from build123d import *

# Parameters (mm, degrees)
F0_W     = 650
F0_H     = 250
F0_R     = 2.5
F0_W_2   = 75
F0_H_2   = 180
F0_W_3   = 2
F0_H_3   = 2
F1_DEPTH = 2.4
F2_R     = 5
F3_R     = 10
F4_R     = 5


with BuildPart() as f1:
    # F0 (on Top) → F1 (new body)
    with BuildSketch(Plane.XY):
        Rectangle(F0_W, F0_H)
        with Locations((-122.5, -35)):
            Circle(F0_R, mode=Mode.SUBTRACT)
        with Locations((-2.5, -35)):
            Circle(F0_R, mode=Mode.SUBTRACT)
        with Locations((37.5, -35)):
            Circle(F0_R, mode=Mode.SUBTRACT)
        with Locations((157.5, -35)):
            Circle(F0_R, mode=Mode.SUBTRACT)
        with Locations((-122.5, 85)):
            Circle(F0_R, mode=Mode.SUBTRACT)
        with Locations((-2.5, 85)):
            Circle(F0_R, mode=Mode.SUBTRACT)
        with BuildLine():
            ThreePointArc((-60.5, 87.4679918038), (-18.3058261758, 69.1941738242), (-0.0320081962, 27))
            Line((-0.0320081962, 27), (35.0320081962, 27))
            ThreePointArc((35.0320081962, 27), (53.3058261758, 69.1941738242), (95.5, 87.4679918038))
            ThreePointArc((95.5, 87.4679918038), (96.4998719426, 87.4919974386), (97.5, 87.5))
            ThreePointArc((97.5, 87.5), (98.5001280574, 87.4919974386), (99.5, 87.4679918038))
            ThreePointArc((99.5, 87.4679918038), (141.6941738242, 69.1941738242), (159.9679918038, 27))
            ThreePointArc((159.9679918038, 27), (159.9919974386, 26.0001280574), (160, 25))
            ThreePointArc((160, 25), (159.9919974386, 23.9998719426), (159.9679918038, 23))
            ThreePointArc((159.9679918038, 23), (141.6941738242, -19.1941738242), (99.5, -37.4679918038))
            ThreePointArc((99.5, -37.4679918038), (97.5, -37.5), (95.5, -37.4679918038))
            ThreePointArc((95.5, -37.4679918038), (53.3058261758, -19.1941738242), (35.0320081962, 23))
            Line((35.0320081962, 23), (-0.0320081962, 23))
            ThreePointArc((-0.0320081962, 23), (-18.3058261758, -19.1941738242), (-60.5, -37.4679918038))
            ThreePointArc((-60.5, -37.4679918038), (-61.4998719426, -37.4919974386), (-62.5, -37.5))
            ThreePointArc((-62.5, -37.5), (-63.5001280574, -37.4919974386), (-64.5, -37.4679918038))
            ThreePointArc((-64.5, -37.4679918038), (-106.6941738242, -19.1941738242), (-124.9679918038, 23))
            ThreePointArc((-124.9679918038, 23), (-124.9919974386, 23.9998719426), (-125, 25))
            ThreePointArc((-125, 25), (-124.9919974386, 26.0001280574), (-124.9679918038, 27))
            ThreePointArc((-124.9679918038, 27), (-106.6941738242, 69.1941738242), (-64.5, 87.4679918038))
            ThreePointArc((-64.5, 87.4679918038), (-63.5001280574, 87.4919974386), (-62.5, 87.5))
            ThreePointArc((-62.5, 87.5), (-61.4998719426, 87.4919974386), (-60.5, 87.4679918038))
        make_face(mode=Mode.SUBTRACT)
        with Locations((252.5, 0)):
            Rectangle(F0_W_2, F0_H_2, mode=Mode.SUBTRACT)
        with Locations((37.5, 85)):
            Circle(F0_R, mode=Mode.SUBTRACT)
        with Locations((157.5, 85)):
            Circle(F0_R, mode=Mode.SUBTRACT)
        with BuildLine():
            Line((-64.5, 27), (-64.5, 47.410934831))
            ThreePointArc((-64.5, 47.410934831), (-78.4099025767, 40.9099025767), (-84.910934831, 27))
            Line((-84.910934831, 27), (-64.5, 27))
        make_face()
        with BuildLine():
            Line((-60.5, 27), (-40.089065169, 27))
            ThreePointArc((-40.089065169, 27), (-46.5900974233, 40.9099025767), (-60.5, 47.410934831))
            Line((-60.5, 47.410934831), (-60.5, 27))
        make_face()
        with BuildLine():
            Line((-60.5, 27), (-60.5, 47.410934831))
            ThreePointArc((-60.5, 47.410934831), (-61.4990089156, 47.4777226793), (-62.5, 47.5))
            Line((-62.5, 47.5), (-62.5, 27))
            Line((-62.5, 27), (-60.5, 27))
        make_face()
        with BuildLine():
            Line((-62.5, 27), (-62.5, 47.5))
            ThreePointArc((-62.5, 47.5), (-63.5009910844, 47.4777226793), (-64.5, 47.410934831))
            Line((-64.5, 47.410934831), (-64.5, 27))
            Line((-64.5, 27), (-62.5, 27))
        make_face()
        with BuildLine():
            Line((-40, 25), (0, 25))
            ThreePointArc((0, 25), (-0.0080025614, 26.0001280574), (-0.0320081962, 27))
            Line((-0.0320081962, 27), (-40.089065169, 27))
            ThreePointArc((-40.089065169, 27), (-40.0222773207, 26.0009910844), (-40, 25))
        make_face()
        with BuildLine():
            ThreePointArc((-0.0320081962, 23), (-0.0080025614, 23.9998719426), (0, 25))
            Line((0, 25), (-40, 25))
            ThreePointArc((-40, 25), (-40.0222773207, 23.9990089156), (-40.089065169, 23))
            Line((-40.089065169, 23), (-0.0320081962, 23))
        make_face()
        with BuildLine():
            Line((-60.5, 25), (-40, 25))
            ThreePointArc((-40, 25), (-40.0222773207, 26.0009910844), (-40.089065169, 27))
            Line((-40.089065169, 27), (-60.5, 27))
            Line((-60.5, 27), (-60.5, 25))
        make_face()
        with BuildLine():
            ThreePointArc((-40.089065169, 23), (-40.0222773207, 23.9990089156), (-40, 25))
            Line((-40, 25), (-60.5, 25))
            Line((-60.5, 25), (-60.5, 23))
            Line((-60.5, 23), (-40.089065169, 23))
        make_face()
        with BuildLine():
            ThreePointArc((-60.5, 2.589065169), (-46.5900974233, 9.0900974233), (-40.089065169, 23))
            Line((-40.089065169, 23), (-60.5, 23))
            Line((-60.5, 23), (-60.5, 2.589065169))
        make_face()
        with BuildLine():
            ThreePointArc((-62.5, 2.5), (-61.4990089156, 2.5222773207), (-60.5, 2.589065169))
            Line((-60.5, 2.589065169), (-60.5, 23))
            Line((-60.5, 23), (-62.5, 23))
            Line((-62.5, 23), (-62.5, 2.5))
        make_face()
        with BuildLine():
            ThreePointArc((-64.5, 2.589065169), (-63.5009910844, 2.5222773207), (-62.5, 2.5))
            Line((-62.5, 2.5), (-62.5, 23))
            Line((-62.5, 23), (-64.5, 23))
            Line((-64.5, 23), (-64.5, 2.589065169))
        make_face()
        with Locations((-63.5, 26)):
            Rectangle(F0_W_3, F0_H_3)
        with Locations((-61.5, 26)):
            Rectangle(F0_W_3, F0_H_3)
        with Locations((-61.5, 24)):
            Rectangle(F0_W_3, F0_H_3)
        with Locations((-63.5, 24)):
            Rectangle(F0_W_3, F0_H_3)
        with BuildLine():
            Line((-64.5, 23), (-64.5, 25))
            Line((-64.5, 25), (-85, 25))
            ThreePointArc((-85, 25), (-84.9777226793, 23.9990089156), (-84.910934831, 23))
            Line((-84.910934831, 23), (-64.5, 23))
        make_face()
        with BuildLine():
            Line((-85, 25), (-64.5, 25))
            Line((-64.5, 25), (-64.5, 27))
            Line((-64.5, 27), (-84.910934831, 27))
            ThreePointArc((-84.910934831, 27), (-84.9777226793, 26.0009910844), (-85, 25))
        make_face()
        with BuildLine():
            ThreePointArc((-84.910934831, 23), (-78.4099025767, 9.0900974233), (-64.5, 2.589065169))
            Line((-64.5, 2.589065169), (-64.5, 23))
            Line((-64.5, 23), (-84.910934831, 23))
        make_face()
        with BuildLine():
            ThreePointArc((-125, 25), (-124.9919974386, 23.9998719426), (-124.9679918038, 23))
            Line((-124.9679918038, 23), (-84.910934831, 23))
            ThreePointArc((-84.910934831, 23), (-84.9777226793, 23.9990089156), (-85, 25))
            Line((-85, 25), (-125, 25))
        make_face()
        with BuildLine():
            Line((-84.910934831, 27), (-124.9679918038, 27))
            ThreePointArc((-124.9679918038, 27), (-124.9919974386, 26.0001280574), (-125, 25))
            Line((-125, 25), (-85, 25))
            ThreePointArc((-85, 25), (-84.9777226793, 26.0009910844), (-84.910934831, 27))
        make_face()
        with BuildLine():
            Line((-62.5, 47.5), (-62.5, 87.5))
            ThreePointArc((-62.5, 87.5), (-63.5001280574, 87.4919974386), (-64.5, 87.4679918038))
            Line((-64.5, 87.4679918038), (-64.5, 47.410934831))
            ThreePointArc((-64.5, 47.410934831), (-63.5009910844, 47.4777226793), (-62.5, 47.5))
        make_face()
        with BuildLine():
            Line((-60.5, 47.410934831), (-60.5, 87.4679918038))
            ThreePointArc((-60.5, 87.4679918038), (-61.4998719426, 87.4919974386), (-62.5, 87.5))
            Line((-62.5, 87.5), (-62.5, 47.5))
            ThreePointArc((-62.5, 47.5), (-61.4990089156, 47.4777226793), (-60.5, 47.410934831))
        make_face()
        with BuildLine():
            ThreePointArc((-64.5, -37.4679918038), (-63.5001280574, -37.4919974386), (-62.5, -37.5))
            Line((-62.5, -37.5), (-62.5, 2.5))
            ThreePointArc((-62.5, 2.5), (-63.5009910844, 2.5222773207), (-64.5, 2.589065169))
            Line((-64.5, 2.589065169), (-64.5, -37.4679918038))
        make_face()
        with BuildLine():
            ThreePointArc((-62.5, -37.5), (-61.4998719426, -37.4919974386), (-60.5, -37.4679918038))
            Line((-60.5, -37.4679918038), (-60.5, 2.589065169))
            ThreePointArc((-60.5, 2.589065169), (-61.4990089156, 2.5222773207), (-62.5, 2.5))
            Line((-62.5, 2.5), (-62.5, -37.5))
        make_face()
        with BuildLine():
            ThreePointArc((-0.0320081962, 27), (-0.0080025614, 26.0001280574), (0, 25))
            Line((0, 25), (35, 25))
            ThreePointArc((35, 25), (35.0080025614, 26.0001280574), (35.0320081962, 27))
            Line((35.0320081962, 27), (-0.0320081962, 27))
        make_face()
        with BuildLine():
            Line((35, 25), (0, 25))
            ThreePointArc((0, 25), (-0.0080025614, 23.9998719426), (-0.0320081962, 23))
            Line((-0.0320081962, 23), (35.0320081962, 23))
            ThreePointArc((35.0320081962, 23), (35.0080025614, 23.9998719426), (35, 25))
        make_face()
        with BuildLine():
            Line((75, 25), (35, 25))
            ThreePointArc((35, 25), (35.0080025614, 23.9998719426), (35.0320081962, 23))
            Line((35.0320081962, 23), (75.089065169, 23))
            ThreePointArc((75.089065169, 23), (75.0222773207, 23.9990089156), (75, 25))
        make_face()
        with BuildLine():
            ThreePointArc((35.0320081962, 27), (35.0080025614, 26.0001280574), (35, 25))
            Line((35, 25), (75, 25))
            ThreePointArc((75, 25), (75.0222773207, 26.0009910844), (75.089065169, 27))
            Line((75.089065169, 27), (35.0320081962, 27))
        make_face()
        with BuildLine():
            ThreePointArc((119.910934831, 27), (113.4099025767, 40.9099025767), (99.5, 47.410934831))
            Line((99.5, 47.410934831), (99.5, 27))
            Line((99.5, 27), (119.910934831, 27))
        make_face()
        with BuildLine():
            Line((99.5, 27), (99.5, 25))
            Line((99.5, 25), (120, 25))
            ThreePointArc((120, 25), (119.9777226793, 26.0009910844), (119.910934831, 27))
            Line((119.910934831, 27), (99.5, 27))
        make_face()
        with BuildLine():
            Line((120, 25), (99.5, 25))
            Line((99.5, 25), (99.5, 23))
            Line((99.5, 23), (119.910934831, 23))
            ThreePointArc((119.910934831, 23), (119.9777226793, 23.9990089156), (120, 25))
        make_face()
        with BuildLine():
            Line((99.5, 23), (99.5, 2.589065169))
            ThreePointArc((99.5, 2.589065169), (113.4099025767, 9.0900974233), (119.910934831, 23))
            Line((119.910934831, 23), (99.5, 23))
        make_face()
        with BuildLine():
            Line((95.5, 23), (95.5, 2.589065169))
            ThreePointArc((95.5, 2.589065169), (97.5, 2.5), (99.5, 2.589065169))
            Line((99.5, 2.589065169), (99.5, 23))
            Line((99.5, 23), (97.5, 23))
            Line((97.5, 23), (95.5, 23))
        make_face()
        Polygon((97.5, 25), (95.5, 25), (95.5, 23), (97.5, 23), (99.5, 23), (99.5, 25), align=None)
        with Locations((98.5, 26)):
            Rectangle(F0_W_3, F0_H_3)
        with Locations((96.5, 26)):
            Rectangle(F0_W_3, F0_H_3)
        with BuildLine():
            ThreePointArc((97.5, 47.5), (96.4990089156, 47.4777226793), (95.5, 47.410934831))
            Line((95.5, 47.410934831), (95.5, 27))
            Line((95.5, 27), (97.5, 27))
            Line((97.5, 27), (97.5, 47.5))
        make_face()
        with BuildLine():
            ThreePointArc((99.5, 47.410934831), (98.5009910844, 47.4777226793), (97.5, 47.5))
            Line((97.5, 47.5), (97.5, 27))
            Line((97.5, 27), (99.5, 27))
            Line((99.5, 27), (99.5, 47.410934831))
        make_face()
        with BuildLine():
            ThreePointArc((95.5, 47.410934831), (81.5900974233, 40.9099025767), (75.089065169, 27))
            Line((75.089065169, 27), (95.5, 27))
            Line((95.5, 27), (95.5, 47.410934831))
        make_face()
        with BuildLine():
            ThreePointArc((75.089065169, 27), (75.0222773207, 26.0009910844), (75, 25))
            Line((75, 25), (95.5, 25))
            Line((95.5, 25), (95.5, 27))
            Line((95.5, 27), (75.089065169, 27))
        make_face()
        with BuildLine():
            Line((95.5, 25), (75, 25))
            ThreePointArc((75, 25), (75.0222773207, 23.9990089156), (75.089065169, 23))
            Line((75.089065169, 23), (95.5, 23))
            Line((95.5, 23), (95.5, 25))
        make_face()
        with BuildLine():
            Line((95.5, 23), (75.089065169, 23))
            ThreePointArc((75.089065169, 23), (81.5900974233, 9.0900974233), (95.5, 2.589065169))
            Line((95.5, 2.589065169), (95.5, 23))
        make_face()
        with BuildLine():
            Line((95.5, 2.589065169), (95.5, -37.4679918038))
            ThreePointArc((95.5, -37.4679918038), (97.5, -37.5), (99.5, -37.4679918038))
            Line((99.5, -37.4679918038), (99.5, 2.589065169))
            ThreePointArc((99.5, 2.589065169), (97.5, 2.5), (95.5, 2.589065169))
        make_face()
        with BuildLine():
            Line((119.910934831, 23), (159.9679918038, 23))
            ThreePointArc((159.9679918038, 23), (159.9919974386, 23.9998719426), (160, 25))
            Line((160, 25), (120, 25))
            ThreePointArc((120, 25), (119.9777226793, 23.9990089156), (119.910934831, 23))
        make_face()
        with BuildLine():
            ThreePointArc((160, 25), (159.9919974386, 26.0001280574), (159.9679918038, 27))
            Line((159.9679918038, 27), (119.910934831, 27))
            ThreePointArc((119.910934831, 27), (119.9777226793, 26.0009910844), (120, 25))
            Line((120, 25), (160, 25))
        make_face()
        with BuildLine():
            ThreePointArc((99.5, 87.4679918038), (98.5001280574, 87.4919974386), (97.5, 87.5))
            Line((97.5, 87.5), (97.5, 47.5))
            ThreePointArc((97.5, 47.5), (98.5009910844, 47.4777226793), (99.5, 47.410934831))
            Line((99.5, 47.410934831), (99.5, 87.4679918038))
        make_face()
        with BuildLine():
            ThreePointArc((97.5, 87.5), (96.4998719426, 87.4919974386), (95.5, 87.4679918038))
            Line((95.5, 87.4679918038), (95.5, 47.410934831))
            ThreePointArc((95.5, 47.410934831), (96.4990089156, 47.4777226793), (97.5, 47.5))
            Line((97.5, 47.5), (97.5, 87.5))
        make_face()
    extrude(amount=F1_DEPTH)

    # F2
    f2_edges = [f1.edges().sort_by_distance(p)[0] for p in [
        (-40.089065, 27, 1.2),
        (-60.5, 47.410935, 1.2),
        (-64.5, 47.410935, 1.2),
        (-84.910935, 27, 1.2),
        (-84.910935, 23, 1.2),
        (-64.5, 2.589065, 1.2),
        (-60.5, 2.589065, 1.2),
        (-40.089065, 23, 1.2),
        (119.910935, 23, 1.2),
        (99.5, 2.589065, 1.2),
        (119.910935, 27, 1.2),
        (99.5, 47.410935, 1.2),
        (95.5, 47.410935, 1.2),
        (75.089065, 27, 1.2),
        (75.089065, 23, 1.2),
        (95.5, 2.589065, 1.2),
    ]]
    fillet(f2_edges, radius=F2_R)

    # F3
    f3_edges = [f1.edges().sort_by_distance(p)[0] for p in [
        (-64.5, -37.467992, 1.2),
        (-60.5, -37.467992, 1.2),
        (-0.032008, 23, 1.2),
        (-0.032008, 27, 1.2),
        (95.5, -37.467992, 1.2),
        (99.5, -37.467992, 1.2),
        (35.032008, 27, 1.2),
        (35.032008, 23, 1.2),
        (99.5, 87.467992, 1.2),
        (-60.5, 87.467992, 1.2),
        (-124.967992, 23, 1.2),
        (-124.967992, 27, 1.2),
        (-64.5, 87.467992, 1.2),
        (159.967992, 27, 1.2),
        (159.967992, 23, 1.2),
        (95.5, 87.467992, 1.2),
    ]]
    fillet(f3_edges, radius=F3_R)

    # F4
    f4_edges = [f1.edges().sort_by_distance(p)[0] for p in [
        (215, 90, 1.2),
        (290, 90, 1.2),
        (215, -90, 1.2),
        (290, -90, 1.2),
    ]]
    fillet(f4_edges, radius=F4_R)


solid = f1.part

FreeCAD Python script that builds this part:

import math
import FreeCAD as App
import Part
import Sketcher
Q = App.Units.Quantity


def edges_at(feature, points):
    """Names of the edges that pass closest to the given points."""
    edges = feature.Shape.Edges
    near = lambda p: min(range(len(edges)), key=lambda i: edges[i].distToShape(Part.Vertex(*p))[0])
    return sorted({f"Edge{near(p) + 1}" for p in points})

doc = App.newDocument("Part")
body = doc.addObject("PartDesign::Body", "Body")

# Sketch on XY plane
sketch1 = body.newObject("Sketcher::SketchObject", "Sketch")
sketch1.AttachmentSupport = (doc.getObject("XY_Plane"), [""])
sketch1.MapMode = "FlatFace"
sketch1.addGeometry([
    Part.LineSegment(App.Vector(-325, 125, 0), App.Vector(-325, -125, 0)),  # 0
    Part.LineSegment(App.Vector(-325, -125, 0), App.Vector(325, -125, 0)),  # 1
    Part.LineSegment(App.Vector(325, -125, 0), App.Vector(325, 125, 0)),  # 2
    Part.LineSegment(App.Vector(325, 125, 0), App.Vector(-325, 125, 0)),  # 3
    Part.Circle(App.Vector(-122.5, -35, 0), App.Vector(0, 0, 1), 2.5),  # 4
    Part.ArcOfCircle(Part.Circle(App.Vector(-62.5, 25, 0), App.Vector(0, 0, 1), 22.5), math.radians(-175), math.radians(-95)),  # 5
    Part.LineSegment(App.Vector(-64.5, 2.6, 0), App.Vector(-64.5, -37.5, 0)),  # 6
    Part.ArcOfCircle(Part.Circle(App.Vector(-62.5, 25, 0), App.Vector(0, 0, 1), 62.5), math.radians(-178), math.radians(-92)),  # 7
    Part.LineSegment(App.Vector(-125, 23, 0), App.Vector(-84.9, 23, 0)),  # 8
    Part.LineSegment(App.Vector(-40.1, 23, 0), App.Vector(0, 23, 0)),  # 9
    Part.ArcOfCircle(Part.Circle(App.Vector(-62.5, 25, 0), App.Vector(0, 0, 1), 62.5), math.radians(-88), math.radians(-2)),  # 10
    Part.LineSegment(App.Vector(-60.5, -37.5, 0), App.Vector(-60.5, 2.6, 0)),  # 11
    Part.ArcOfCircle(Part.Circle(App.Vector(-62.5, 25, 0), App.Vector(0, 0, 1), 22.5), math.radians(-85), math.radians(-5)),  # 12
    Part.Circle(App.Vector(-2.5, -35, 0), App.Vector(0, 0, 1), 2.5),  # 13
    Part.Circle(App.Vector(37.5, -35, 0), App.Vector(0, 0, 1), 2.5),  # 14
    Part.Circle(App.Vector(157.5, -35, 0), App.Vector(0, 0, 1), 2.5),  # 15
    Part.ArcOfCircle(Part.Circle(App.Vector(97.5, 25, 0), App.Vector(0, 0, 1), 62.5), math.radians(-178), math.radians(-92)),  # 16
    Part.LineSegment(App.Vector(35, 23, 0), App.Vector(75.1, 23, 0)),  # 17
    Part.ArcOfCircle(Part.Circle(App.Vector(97.5, 25, 0), App.Vector(0, 0, 1), 22.5), math.radians(-175), math.radians(-95)),  # 18
    Part.LineSegment(App.Vector(95.5, 2.6, 0), App.Vector(95.5, -37.5, 0)),  # 19
    Part.ArcOfCircle(Part.Circle(App.Vector(97.5, 25, 0), App.Vector(0, 0, 1), 22.5), math.radians(-85), math.radians(-5)),  # 20
    Part.LineSegment(App.Vector(119.9, 23, 0), App.Vector(160, 23, 0)),  # 21
    Part.ArcOfCircle(Part.Circle(App.Vector(97.5, 25, 0), App.Vector(0, 0, 1), 62.5), math.radians(-88), math.radians(-2)),  # 22
    Part.LineSegment(App.Vector(99.5, -37.5, 0), App.Vector(99.5, 2.6, 0)),  # 23
    Part.ArcOfCircle(Part.Circle(App.Vector(97.5, 25, 0), App.Vector(0, 0, 1), 22.5), math.radians(5), math.radians(85)),  # 24
    Part.LineSegment(App.Vector(99.5, 47.4, 0), App.Vector(99.5, 87.5, 0)),  # 25
    Part.ArcOfCircle(Part.Circle(App.Vector(97.5, 25, 0), App.Vector(0, 0, 1), 62.5), math.radians(2), math.radians(88)),  # 26
    Part.LineSegment(App.Vector(160, 27, 0), App.Vector(119.9, 27, 0)),  # 27
    Part.ArcOfCircle(Part.Circle(App.Vector(97.5, 25, 0), App.Vector(0, 0, 1), 22.5), math.radians(95), math.radians(175)),  # 28
    Part.LineSegment(App.Vector(75.1, 27, 0), App.Vector(35, 27, 0)),  # 29
    Part.ArcOfCircle(Part.Circle(App.Vector(97.5, 25, 0), App.Vector(0, 0, 1), 62.5), math.radians(92), math.radians(178)),  # 30
    Part.LineSegment(App.Vector(95.5, 87.5, 0), App.Vector(95.5, 47.4, 0)),  # 31
    Part.ArcOfCircle(Part.Circle(App.Vector(-62.5, 25, 0), App.Vector(0, 0, 1), 62.5), math.radians(92), math.radians(178)),  # 32
    Part.LineSegment(App.Vector(-64.5, 87.5, 0), App.Vector(-64.5, 47.4, 0)),  # 33
    Part.ArcOfCircle(Part.Circle(App.Vector(-62.5, 25, 0), App.Vector(0, 0, 1), 22.5), math.radians(95), math.radians(175)),  # 34
    Part.LineSegment(App.Vector(-84.9, 27, 0), App.Vector(-125, 27, 0)),  # 35
    Part.ArcOfCircle(Part.Circle(App.Vector(-62.5, 25, 0), App.Vector(0, 0, 1), 62.5), math.radians(2), math.radians(88)),  # 36
    Part.LineSegment(App.Vector(0, 27, 0), App.Vector(-40.1, 27, 0)),  # 37
    Part.ArcOfCircle(Part.Circle(App.Vector(-62.5, 25, 0), App.Vector(0, 0, 1), 22.5), math.radians(5), math.radians(85)),  # 38
    Part.LineSegment(App.Vector(-60.5, 47.4, 0), App.Vector(-60.5, 87.5, 0)),  # 39
    Part.Circle(App.Vector(-122.5, 85, 0), App.Vector(0, 0, 1), 2.5),  # 40
    Part.Circle(App.Vector(-2.5, 85, 0), App.Vector(0, 0, 1), 2.5),  # 41
    Part.Circle(App.Vector(37.5, 85, 0), App.Vector(0, 0, 1), 2.5),  # 42
    Part.LineSegment(App.Vector(290, -90, 0), App.Vector(215, -90, 0)),  # 43
    Part.LineSegment(App.Vector(215, -90, 0), App.Vector(215, 90, 0)),  # 44
    Part.LineSegment(App.Vector(215, 90, 0), App.Vector(290, 90, 0)),  # 45
    Part.LineSegment(App.Vector(290, 90, 0), App.Vector(290, -90, 0)),  # 46
    Part.Circle(App.Vector(157.5, 85, 0), App.Vector(0, 0, 1), 2.5),  # 47
], False)
sketch1.addConstraint([
    Sketcher.Constraint("Coincident", 0, 2, 1, 1),
    Sketcher.Constraint("Coincident", 1, 2, 2, 1),
    Sketcher.Constraint("Coincident", 2, 2, 3, 1),
    Sketcher.Constraint("Coincident", 3, 2, 0, 1),
    Sketcher.Constraint("Coincident", 5, 2, 6, 1),
    Sketcher.Constraint("Coincident", 6, 2, 7, 2),
    Sketcher.Constraint("Coincident", 7, 1, 8, 1),
    Sketcher.Constraint("Coincident", 8, 2, 5, 1),
    Sketcher.Constraint("Coincident", 9, 2, 10, 2),
    Sketcher.Constraint("Coincident", 10, 1, 11, 1),
    Sketcher.Constraint("Coincident", 11, 2, 12, 1),
    Sketcher.Constraint("Coincident", 12, 2, 9, 1),
    Sketcher.Constraint("Coincident", 16, 1, 17, 1),
    Sketcher.Constraint("Coincident", 17, 2, 18, 1),
    Sketcher.Constraint("Coincident", 18, 2, 19, 1),
    Sketcher.Constraint("Coincident", 19, 2, 16, 2),
    Sketcher.Constraint("Coincident", 20, 2, 21, 1),
    Sketcher.Constraint("Coincident", 21, 2, 22, 2),
    Sketcher.Constraint("Coincident", 22, 1, 23, 1),
    Sketcher.Constraint("Coincident", 23, 2, 20, 1),
    Sketcher.Constraint("Coincident", 24, 2, 25, 1),
    Sketcher.Constraint("Coincident", 25, 2, 26, 2),
    Sketcher.Constraint("Coincident", 26, 1, 27, 1),
    Sketcher.Constraint("Coincident", 27, 2, 24, 1),
    Sketcher.Constraint("Coincident", 28, 2, 29, 1),
    Sketcher.Constraint("Coincident", 29, 2, 30, 2),
    Sketcher.Constraint("Coincident", 30, 1, 31, 1),
    Sketcher.Constraint("Coincident", 31, 2, 28, 1),
    Sketcher.Constraint("Coincident", 32, 1, 33, 1),
    Sketcher.Constraint("Coincident", 33, 2, 34, 1),
    Sketcher.Constraint("Coincident", 34, 2, 35, 1),
    Sketcher.Constraint("Coincident", 35, 2, 32, 2),
    Sketcher.Constraint("Coincident", 36, 1, 37, 1),
    Sketcher.Constraint("Coincident", 37, 2, 38, 1),
    Sketcher.Constraint("Coincident", 38, 2, 39, 1),
    Sketcher.Constraint("Coincident", 39, 2, 36, 2),
    Sketcher.Constraint("Coincident", 43, 2, 44, 1),
    Sketcher.Constraint("Coincident", 44, 2, 45, 1),
    Sketcher.Constraint("Coincident", 45, 2, 46, 1),
    Sketcher.Constraint("Coincident", 46, 2, 43, 1),
    Sketcher.Constraint("Vertical", 0),
    Sketcher.Constraint("Horizontal", 1),
    Sketcher.Constraint("Vertical", 2),
    Sketcher.Constraint("Horizontal", 3),
    Sketcher.Constraint("Vertical", 6),
    Sketcher.Constraint("Horizontal", 8),
    Sketcher.Constraint("Horizontal", 9),
    Sketcher.Constraint("Vertical", 11),
    Sketcher.Constraint("Horizontal", 17),
    Sketcher.Constraint("Vertical", 19),
    Sketcher.Constraint("Horizontal", 21),
    Sketcher.Constraint("Vertical", 23),
    Sketcher.Constraint("Vertical", 25),
    Sketcher.Constraint("Horizontal", 27),
    Sketcher.Constraint("Horizontal", 29),
    Sketcher.Constraint("Vertical", 31),
    Sketcher.Constraint("Vertical", 33),
    Sketcher.Constraint("Horizontal", 35),
    Sketcher.Constraint("Horizontal", 37),
    Sketcher.Constraint("Vertical", 39),
    Sketcher.Constraint("Horizontal", 43),
    Sketcher.Constraint("Vertical", 44),
    Sketcher.Constraint("Horizontal", 45),
    Sketcher.Constraint("Vertical", 46),
    Sketcher.Constraint("Coincident", 7, 3, 5, 3),
    Sketcher.Constraint("Coincident", 10, 3, 5, 3),
    Sketcher.Constraint("Coincident", 12, 3, 5, 3),
    Sketcher.Constraint("Coincident", 18, 3, 16, 3),
    Sketcher.Constraint("Coincident", 20, 3, 16, 3),
    Sketcher.Constraint("Coincident", 22, 3, 16, 3),
    Sketcher.Constraint("Coincident", 24, 3, 16, 3),
    Sketcher.Constraint("Coincident", 26, 3, 16, 3),
    Sketcher.Constraint("Coincident", 28, 3, 16, 3),
    Sketcher.Constraint("Coincident", 30, 3, 16, 3),
    Sketcher.Constraint("Coincident", 32, 3, 5, 3),
    Sketcher.Constraint("Coincident", 34, 3, 5, 3),
    Sketcher.Constraint("Coincident", 36, 3, 5, 3),
    Sketcher.Constraint("Coincident", 38, 3, 5, 3),
    Sketcher.Constraint("Equal", 7, 10),
    Sketcher.Constraint("Equal", 5, 12),
    Sketcher.Constraint("Equal", 4, 13),
    Sketcher.Constraint("Equal", 13, 14),
    Sketcher.Constraint("Equal", 14, 15),
    Sketcher.Constraint("Equal", 10, 16),
    Sketcher.Constraint("Equal", 12, 18),
    Sketcher.Constraint("Equal", 18, 20),
    Sketcher.Constraint("Equal", 16, 22),
    Sketcher.Constraint("Equal", 20, 24),
    Sketcher.Constraint("Equal", 22, 26),
    Sketcher.Constraint("Equal", 24, 28),
    Sketcher.Constraint("Equal", 26, 30),
    Sketcher.Constraint("Equal", 30, 32),
    Sketcher.Constraint("Equal", 28, 34),
    Sketcher.Constraint("Equal", 32, 36),
    Sketcher.Constraint("Equal", 34, 38),
    Sketcher.Constraint("Equal", 15, 40),
    Sketcher.Constraint("Equal", 40, 41),
    Sketcher.Constraint("Equal", 41, 42),
    Sketcher.Constraint("Equal", 42, 47),
    Sketcher.Constraint("Symmetric", 0, 2, 2, 2, -1, 1),
    Sketcher.Constraint("Horizontal", 4, 3, 13, 3),
    Sketcher.Constraint("Horizontal", 13, 3, 14, 3),
    Sketcher.Constraint("Horizontal", 14, 3, 15, 3),
    Sketcher.Constraint("Horizontal", 12, 3, 16, 3),
    Sketcher.Constraint("Horizontal", 40, 3, 41, 3),
    Sketcher.Constraint("Horizontal", 41, 3, 42, 3),
    Sketcher.Constraint("Horizontal", 42, 3, 47, 3),
    Sketcher.Constraint("Horizontal", 8, 2, 9, 2),
    Sketcher.Constraint("Horizontal", 6, 2, 10, 1),
    Sketcher.Constraint("Horizontal", 12, 2, 16, 1),
    Sketcher.Constraint("Horizontal", 11, 2, 18, 2),
    Sketcher.Constraint("Horizontal", 17, 2, 20, 2),
    Sketcher.Constraint("Horizontal", 19, 2, 22, 1),
    Sketcher.Constraint("Horizontal", 27, 2, 28, 2),
    Sketcher.Constraint("Horizontal", 25, 2, 30, 1),
    Sketcher.Constraint("Horizontal", 30, 1, 32, 1),
    Sketcher.Constraint("Horizontal", 29, 2, 34, 2),
    Sketcher.Constraint("Horizontal", 35, 2, 36, 1),
    Sketcher.Constraint("Horizontal", 33, 2, 38, 2),
    Sketcher.Constraint("Vertical", 4, 3, 40, 3),
    Sketcher.Constraint("Vertical", 13, 3, 41, 3),
    Sketcher.Constraint("Vertical", 14, 3, 42, 3),
    Sketcher.Constraint("Vertical", 15, 3, 47, 3),
    Sketcher.Constraint("Vertical", 23, 2, 24, 2),
    Sketcher.Constraint("Vertical", 21, 2, 26, 1),
    Sketcher.Constraint("Equal", 37, 6),
    Sketcher.Constraint("Diameter", 4, Q("5 mm")),
    Sketcher.Constraint("Radius", 5, Q("22.5 mm")),
    Sketcher.Constraint("Radius", 7, Q("62.5 mm")),
    Sketcher.Constraint("DistanceX", 1, 1, 1, 2, Q("650 mm")),
    Sketcher.Constraint("DistanceX", 43, 2, 43, 1, Q("75 mm")),
    Sketcher.Constraint("DistanceY", 0, 2, 0, 1, Q("250 mm")),
    Sketcher.Constraint("DistanceY", 44, 1, 44, 2, Q("180 mm")),
    Sketcher.Constraint("DistanceY", 4, 3, -1, 1, Q("35 mm")),
    Sketcher.Constraint("DistanceY", -1, 1, 5, 3, Q("25 mm")),
    Sketcher.Constraint("DistanceY", -1, 1, 40, 3, Q("85 mm")),
    Sketcher.Constraint("DistanceY", -1, 1, 7, 1, Q("23 mm")),
    Sketcher.Constraint("DistanceX", -1, 1, 43, 2, Q("215 mm")),
    Sketcher.Constraint("DistanceY", 43, 2, -1, 1, Q("90 mm")),
    Sketcher.Constraint("DistanceX", 4, 3, -1, 1, Q("122.5 mm")),
    Sketcher.Constraint("DistanceX", 5, 3, -1, 1, Q("62.5 mm")),
    Sketcher.Constraint("DistanceX", 13, 3, -1, 1, Q("2.5 mm")),
    Sketcher.Constraint("DistanceX", -1, 1, 14, 3, Q("37.5 mm")),
    Sketcher.Constraint("DistanceX", -1, 1, 15, 3, Q("157.5 mm")),
    Sketcher.Constraint("DistanceX", -1, 1, 16, 3, Q("97.5 mm")),
])
pad1 = body.newObject("PartDesign::Pad", "Pad")
pad1.Profile = sketch1
pad1.Length = 2.4
doc.recompute()

fillet = body.newObject("PartDesign::Fillet", "Fillet")
fillet.Base = (pad1, edges_at(pad1, [
    (-40.089, 27, 1.2),
    (-60.5, 47.411, 1.2),
    (-64.5, 47.411, 1.2),
    (-84.911, 27, 1.2),
    (-84.911, 23, 1.2),
    (-64.5, 2.589, 1.2),
    (-60.5, 2.589, 1.2),
    (-40.089, 23, 1.2),
    (119.911, 23, 1.2),
    (99.5, 2.589, 1.2),
    (119.911, 27, 1.2),
    (99.5, 47.411, 1.2),
    (95.5, 47.411, 1.2),
    (75.089, 27, 1.2),
    (75.089, 23, 1.2),
    (95.5, 2.589, 1.2),
]))
fillet.Radius = 5
doc.recompute()

fillet2 = body.newObject("PartDesign::Fillet", "Fillet001")
fillet2.Base = (fillet, edges_at(fillet, [
    (-64.5, -37.468, 1.2),
    (-60.5, -37.468, 1.2),
    (-0.032, 23, 1.2),
    (-0.032, 27, 1.2),
    (95.5, -37.468, 1.2),
    (99.5, -37.468, 1.2),
    (35.032, 27, 1.2),
    (35.032, 23, 1.2),
    (99.5, 87.468, 1.2),
    (-60.5, 87.468, 1.2),
    (-124.968, 23, 1.2),
    (-124.968, 27, 1.2),
    (-64.5, 87.468, 1.2),
    (159.968, 27, 1.2),
    (159.968, 23, 1.2),
    (95.5, 87.468, 1.2),
]))
fillet2.Radius = 10
doc.recompute()

fillet3 = body.newObject("PartDesign::Fillet", "Fillet002")
fillet3.Base = (fillet2, edges_at(fillet2, [
    (215, 90, 1.2),
    (290, 90, 1.2),
    (215, -90, 1.2),
    (290, -90, 1.2),
]))
fillet3.Radius = 5

doc.recompute()
